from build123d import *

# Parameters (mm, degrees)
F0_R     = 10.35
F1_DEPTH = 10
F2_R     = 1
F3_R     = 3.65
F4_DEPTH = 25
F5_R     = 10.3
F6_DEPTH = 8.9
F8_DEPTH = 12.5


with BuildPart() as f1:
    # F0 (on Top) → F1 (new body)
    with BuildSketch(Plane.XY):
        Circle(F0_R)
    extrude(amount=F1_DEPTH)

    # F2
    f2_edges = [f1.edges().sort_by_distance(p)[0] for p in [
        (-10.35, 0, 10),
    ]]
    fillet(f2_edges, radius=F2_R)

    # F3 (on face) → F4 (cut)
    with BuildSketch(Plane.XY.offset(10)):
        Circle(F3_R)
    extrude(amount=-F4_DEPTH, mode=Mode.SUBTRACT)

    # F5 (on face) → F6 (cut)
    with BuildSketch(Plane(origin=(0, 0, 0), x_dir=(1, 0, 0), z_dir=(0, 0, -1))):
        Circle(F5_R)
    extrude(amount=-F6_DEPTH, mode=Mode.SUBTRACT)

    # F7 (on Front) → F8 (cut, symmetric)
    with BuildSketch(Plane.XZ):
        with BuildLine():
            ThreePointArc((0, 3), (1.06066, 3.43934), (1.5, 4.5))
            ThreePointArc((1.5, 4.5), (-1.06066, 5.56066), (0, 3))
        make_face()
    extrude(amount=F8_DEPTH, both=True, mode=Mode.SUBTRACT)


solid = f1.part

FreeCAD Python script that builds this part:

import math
import FreeCAD as App
import Part
import Sketcher
from FreeCAD import Vector
Q = App.Units.Quantity


def edges_at(feature, points):
    """Names of the edges that pass closest to the given points."""
    edges = feature.Shape.Edges
    near = lambda p: min(range(len(edges)), key=lambda i: edges[i].distToShape(Part.Vertex(*p))[0])
    return sorted({f"Edge{near(p) + 1}" for p in points})

doc = App.newDocument("Part")
body = doc.addObject("PartDesign::Body", "Body")

sketch1 = body.newObject("Sketcher::SketchObject", "Sketch")
sketch1.AttachmentSupport = (doc.getObject("XY_Plane"), [""])
sketch1.MapMode = "FlatFace"
sketch1.addGeometry(Part.Circle(Vector(0, 0, 0), Vector(0, 0, 1), 10), False)
sketch1.addConstraint(Sketcher.Constraint("Coincident", 0, 3, -1, 1))
sketch1.addConstraint(Sketcher.Constraint("Diameter", 0, Q("20.7 mm")))
pad1 = body.newObject("PartDesign::Pad", "Pad")
pad1.Profile = sketch1
pad1.Length = 10
doc.recompute()

fillet = body.newObject("PartDesign::Fillet", "Fillet")
fillet.Base = (pad1, edges_at(pad1, [(-10.35, 0, 10)]))
fillet.Radius = 1

sketch2 = body.newObject("Sketcher::SketchObject", "Sketch001")
sketch2.AttachmentSupport = (doc.getObject("XY_Plane"), [""])
sketch2.MapMode = "FlatFace"
sketch2.AttachmentOffset = App.Placement(Vector(0, 0, 10), App.Rotation())
sketch2.addGeometry(Part.Circle(Vector(0, 0, 0), Vector(0, 0, 1), 3.6), False)
sketch2.addConstraint(Sketcher.Constraint("Coincident", 0, 3, -1, 1))
sketch2.addConstraint(Sketcher.Constraint("Diameter", 0, Q("7.3 mm")))
pocket1 = body.newObject("PartDesign::Pocket", "Pocket")
pocket1.Profile = sketch2
pocket1.Length = 25

sketch3 = body.newObject("Sketcher::SketchObject", "Sketch002")
sketch3.AttachmentSupport = (doc.getObject("XY_Plane"), [""])
sketch3.MapMode = "FlatFace"
sketch3.addGeometry(Part.Circle(Vector(0, 0, 0), Vector(0, 0, 1), 10), False)
sketch3.addConstraint(Sketcher.Constraint("Coincident", 0, 3, -1, 1))
sketch3.addConstraint(Sketcher.Constraint("Diameter", 0, Q("20.6 mm")))
pocket2 = body.newObject("PartDesign::Pocket", "Pocket001")
pocket2.Profile = sketch3
pocket2.Length = 8.9
pocket2.Reversed = True

sketch4 = body.newObject("Sketcher::SketchObject", "Sketch003")
sketch4.AttachmentSupport = (doc.getObject("XZ_Plane"), [""])
sketch4.MapMode = "FlatFace"
sketch4.addGeometry(Part.ArcOfCircle(Part.Circle(Vector(0, 4.5, 0), Vector(0, 0, 1), 1.5), math.radians(-90), math.radians(0)), False)
sketch4.addGeometry(Part.ArcOfCircle(Part.Circle(Vector(0, 4.5, 0), Vector(0, 0, 1), 1.5), math.radians(0), math.radians(270)), False)
sketch4.addConstraint(Sketcher.Constraint("Tangent", 0, 1, 1, 2))
sketch4.addConstraint(Sketcher.Constraint("Coincident", 1, 1, 0, 2))
sketch4.addConstraint(Sketcher.Constraint("PointOnObject", 0, 3, -2))
sketch4.addConstraint(Sketcher.Constraint("PointOnObject", 0, 1, -2))
sketch4.addConstraint(Sketcher.Constraint("Horizontal", 0, 3, 1, 1))
sketch4.addConstraint(Sketcher.Constraint("Radius", 0, Q("1.500001 mm")))
sketch4.addConstraint(Sketcher.Constraint("DistanceY", -1, 1, 0, 1, Q("3 mm")))
pocket3 = body.newObject("PartDesign::Pocket", "Pocket002")
pocket3.Profile = sketch4
pocket3.Length = 25
pocket3.Midplane = True

doc.recompute()
